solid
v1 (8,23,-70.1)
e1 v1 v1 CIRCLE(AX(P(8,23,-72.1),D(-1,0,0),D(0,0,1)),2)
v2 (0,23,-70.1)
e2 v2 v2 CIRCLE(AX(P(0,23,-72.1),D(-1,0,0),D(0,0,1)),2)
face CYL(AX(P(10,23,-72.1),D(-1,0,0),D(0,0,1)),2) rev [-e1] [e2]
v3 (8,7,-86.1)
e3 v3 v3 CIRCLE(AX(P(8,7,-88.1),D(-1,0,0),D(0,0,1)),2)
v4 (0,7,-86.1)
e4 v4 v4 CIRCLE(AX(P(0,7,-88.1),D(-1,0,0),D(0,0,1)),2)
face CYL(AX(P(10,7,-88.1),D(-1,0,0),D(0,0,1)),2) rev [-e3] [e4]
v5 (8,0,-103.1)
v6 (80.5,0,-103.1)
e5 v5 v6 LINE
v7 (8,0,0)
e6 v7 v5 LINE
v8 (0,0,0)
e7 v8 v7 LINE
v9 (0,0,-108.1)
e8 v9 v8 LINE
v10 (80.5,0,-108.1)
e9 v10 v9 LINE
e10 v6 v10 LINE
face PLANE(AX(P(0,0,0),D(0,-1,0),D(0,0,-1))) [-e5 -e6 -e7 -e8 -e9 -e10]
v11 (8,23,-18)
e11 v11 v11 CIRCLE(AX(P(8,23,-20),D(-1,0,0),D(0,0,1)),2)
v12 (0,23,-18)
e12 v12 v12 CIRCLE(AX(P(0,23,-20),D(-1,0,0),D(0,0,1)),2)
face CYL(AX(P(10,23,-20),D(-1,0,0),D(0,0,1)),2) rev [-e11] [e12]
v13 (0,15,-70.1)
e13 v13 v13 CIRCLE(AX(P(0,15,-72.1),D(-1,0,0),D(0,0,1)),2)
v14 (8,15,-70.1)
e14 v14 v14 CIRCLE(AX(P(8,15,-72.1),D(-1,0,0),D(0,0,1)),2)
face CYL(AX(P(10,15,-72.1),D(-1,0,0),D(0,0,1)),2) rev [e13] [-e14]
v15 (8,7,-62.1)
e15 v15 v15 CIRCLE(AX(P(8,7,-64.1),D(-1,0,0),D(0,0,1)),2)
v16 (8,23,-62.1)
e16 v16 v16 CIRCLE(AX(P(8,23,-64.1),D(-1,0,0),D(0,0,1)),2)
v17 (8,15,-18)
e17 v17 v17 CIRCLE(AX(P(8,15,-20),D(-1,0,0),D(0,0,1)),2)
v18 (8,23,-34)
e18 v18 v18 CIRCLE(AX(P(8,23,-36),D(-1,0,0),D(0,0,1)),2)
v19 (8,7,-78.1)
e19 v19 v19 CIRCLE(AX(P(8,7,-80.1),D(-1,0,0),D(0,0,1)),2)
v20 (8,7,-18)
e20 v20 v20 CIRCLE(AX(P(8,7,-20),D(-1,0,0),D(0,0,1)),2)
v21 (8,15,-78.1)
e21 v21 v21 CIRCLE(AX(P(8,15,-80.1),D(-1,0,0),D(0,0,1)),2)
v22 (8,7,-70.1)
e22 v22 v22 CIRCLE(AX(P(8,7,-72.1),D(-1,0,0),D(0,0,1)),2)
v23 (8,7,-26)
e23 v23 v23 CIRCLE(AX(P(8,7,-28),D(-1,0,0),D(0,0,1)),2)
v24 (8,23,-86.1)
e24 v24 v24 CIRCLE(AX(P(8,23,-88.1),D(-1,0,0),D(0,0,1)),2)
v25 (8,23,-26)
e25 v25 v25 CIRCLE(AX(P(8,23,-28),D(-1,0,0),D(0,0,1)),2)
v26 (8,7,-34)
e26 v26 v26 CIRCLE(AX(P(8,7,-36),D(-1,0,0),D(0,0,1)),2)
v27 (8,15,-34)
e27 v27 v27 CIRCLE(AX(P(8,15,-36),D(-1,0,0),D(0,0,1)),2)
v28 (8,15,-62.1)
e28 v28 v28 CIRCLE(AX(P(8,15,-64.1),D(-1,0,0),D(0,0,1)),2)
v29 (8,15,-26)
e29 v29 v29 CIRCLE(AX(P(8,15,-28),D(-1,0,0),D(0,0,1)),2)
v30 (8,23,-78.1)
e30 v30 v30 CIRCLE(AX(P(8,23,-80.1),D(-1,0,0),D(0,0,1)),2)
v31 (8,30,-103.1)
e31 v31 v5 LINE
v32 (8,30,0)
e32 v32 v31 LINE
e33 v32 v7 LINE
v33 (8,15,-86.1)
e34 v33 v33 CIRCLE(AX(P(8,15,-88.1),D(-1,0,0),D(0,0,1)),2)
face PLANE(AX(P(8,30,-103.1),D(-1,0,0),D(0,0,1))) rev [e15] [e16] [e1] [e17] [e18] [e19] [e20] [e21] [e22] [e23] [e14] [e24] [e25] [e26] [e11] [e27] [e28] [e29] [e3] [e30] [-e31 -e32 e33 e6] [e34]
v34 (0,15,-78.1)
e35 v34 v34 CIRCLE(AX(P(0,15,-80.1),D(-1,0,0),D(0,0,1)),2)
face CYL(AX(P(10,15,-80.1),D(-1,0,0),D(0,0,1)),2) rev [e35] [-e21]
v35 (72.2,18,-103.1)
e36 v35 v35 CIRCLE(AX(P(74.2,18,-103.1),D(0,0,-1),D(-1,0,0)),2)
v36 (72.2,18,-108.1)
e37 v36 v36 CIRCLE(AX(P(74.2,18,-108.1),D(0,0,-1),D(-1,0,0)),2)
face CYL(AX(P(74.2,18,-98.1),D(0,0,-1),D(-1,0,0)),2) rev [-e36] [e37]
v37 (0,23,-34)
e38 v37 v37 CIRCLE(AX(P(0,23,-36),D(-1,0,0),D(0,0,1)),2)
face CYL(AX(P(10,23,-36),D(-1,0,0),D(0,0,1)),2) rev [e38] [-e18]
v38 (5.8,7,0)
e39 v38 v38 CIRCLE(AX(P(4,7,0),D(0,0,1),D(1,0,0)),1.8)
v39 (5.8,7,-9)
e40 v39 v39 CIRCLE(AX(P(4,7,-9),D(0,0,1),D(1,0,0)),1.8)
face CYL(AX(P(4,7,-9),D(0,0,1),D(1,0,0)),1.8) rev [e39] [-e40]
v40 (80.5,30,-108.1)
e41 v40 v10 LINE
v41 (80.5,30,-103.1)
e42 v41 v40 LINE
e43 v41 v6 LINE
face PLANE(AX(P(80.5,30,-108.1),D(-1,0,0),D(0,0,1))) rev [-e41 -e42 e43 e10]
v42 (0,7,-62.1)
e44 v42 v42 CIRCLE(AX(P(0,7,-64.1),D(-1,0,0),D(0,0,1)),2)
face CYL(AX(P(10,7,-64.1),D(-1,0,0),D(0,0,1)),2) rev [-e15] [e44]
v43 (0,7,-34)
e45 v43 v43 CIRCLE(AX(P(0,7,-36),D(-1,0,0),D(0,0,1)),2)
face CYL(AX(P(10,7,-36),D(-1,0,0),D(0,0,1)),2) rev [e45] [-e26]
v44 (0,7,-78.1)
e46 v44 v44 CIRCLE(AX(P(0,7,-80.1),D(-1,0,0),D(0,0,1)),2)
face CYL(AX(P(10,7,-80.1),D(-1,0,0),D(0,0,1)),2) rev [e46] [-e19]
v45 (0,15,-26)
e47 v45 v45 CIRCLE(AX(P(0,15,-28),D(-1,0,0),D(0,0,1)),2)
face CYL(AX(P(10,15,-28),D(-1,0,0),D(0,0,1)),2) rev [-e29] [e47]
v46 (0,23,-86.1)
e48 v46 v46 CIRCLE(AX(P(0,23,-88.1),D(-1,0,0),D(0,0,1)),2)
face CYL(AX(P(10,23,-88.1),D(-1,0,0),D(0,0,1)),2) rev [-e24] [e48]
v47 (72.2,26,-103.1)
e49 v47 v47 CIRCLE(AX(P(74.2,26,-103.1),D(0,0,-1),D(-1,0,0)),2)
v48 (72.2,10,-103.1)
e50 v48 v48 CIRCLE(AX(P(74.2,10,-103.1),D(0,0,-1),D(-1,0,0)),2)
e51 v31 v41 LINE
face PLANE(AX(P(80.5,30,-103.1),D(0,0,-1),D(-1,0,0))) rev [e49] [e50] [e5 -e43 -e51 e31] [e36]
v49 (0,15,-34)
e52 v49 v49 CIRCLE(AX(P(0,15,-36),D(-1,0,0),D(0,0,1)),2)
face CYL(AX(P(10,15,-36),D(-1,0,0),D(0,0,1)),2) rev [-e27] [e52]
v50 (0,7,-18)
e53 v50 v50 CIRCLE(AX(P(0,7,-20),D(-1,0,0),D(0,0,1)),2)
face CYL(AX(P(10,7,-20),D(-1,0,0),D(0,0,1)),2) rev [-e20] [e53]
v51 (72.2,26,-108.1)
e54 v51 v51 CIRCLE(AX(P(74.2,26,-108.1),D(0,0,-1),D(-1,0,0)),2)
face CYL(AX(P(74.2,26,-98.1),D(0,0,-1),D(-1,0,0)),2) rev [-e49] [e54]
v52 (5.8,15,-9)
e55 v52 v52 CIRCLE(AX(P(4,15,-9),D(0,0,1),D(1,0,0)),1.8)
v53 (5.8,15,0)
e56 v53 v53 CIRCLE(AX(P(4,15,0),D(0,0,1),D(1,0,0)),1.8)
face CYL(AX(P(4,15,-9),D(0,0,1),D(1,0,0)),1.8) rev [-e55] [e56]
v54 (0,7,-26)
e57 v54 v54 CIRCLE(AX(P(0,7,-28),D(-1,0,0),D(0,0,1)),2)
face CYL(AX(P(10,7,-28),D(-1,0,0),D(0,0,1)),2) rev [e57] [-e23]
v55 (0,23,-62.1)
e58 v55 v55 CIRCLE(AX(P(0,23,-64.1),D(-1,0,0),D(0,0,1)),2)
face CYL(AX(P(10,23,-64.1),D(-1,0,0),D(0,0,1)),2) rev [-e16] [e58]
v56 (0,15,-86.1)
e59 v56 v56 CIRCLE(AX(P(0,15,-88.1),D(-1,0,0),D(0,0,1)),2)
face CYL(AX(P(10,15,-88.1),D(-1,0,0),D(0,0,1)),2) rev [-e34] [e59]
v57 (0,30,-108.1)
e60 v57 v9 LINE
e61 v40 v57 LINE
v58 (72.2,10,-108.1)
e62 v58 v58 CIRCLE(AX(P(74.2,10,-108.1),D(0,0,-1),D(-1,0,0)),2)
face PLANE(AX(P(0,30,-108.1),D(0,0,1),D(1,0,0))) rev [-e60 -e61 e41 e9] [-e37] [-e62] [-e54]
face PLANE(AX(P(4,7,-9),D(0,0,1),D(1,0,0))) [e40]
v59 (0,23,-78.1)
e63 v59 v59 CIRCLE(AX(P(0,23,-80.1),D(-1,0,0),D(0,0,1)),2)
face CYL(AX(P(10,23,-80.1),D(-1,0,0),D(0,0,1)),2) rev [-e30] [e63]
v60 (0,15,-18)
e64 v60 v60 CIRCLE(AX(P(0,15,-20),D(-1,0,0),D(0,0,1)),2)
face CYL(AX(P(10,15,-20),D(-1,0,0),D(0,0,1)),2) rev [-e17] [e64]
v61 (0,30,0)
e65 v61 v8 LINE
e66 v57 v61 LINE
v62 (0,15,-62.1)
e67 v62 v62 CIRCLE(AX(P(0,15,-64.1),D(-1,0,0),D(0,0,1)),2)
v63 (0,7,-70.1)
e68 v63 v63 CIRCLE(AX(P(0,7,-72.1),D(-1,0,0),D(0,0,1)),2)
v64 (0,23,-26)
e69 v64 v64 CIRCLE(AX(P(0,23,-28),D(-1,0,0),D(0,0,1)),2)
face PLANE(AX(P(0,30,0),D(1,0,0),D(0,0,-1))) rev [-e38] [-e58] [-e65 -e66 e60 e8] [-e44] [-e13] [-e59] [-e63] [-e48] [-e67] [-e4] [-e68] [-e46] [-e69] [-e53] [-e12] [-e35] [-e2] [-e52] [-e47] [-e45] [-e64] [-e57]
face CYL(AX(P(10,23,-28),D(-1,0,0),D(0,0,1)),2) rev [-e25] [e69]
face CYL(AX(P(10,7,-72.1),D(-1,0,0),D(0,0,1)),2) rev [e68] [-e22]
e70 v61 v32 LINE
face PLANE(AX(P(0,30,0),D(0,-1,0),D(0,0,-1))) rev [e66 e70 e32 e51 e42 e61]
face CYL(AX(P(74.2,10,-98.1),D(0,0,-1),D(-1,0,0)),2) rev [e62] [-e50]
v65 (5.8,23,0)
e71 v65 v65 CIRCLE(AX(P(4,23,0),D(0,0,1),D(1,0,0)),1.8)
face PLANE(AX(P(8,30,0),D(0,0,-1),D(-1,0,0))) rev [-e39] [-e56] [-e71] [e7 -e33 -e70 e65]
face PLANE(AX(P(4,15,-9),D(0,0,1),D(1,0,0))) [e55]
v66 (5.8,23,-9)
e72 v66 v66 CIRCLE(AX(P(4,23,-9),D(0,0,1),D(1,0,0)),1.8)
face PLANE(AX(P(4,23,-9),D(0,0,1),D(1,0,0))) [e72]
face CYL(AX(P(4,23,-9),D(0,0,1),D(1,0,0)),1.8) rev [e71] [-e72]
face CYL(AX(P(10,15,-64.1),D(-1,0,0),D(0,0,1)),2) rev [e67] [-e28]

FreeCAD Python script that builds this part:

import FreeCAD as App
import Part
import Sketcher

V = App.Vector
Q = App.Units.Quantity

doc = App.newDocument("Part")
body = doc.addObject("PartDesign::Body", "Body")

# Sketch on XZ plane
sketch1 = body.newObject("Sketcher::SketchObject", "Sketch")
sketch1.AttachmentSupport = (doc.getObject("XZ_Plane"), [""])
sketch1.MapMode = "FlatFace"
sketch1.addGeometry([
    Part.LineSegment(V(0, -108.1, 0), V(0, 0, 0)),  # 0
    Part.LineSegment(V(0, 0, 0), V(8, 0, 0)),  # 1
    Part.LineSegment(V(8, 0, 0), V(8, -103.1, 0)),  # 2
    Part.LineSegment(V(8, -103.1, 0), V(80.5, -103.1, 0)),  # 3
    Part.LineSegment(V(80.5, -103.1, 0), V(80.5, -108.1, 0)),  # 4
    Part.LineSegment(V(80.5, -108.1, 0), V(0, -108.1, 0)),  # 5
], False)
sketch1.addConstraint([
    Sketcher.Constraint("Coincident", 0, 2, 1, 1),
    Sketcher.Constraint("Coincident", 1, 2, 2, 1),
    Sketcher.Constraint("Coincident", 2, 2, 3, 1),
    Sketcher.Constraint("Coincident", 3, 2, 4, 1),
    Sketcher.Constraint("Coincident", 4, 2, 5, 1),
    Sketcher.Constraint("Coincident", 5, 2, 0, 1),
    Sketcher.Constraint("Vertical", 0),
    Sketcher.Constraint("Horizontal", 1),
    Sketcher.Constraint("Vertical", 2),
    Sketcher.Constraint("Horizontal", 3),
    Sketcher.Constraint("Vertical", 4),
    Sketcher.Constraint("Horizontal", 5),
    Sketcher.Constraint("Coincident", 0, 2, -1, 1),
    Sketcher.Constraint("DistanceX", 1, 1, 1, 2, Q("8 mm")),
    Sketcher.Constraint("DistanceY", 4, 2, 4, 1, Q("5 mm")),
    Sketcher.Constraint("DistanceX", 3, 1, 3, 2, Q("72.5 mm")),
    Sketcher.Constraint("DistanceY", 0, 1, 0, 2, Q("108.1 mm")),
])
pad1 = body.newObject("PartDesign::Pad", "Pad")
pad1.Profile = sketch1
pad1.Length = 30
pad1.Reversed = True

# Sketch on YZ plane
sketch2 = body.newObject("Sketcher::SketchObject", "Sketch001")
sketch2.AttachmentSupport = (doc.getObject("YZ_Plane"), [""])
sketch2.MapMode = "FlatFace"
sketch2.addGeometry([
    Part.Circle(V(23, -20, 0), V(0, 0, 1), 2),  # 0
    Part.Circle(V(15, -20, 0), V(0, 0, 1), 2),  # 1
    Part.Circle(V(7, -20, 0), V(0, 0, 1), 2),  # 2
    Part.Circle(V(23, -28, 0), V(0, 0, 1), 2),  # 3
    Part.Circle(V(15, -28, 0), V(0, 0, 1), 2),  # 4
    Part.Circle(V(7, -28, 0), V(0, 0, 1), 2),  # 5
    Part.Circle(V(23, -36, 0), V(0, 0, 1), 2),  # 6
    Part.Circle(V(15, -36, 0), V(0, 0, 1), 2),  # 7
    Part.Circle(V(7, -36, 0), V(0, 0, 1), 2),  # 8
    Part.Circle(V(23, -64.1, 0), V(0, 0, 1), 2),  # 9
    Part.Circle(V(15, -64.1, 0), V(0, 0, 1), 2),  # 10
    Part.Circle(V(7, -64.1, 0), V(0, 0, 1), 2),  # 11
    Part.Circle(V(23, -72.1, 0), V(0, 0, 1), 2),  # 12
    Part.Circle(V(15, -72.1, 0), V(0, 0, 1), 2),  # 13
    Part.Circle(V(7, -72.1, 0), V(0, 0, 1), 2),  # 14
    Part.Circle(V(23, -80.1, 0), V(0, 0, 1), 2),  # 15
    Part.Circle(V(15, -80.1, 0), V(0, 0, 1), 2),  # 16
    Part.Circle(V(7, -80.1, 0), V(0, 0, 1), 2),  # 17
    Part.Circle(V(23, -88.1, 0), V(0, 0, 1), 2),  # 18
    Part.Circle(V(15, -88.1, 0), V(0, 0, 1), 2),  # 19
    Part.Circle(V(7, -88.1, 0), V(0, 0, 1), 2),  # 20
], False)
sketch2.addConstraint([
    Sketcher.Constraint("Equal", 0, 1),
    Sketcher.Constraint("Equal", 1, 2),
    Sketcher.Constraint("Equal", 2, 3),
    Sketcher.Constraint("Equal", 3, 4),
    Sketcher.Constraint("Equal", 4, 5),
    Sketcher.Constraint("Equal", 5, 6),
    Sketcher.Constraint("Equal", 6, 7),
    Sketcher.Constraint("Equal", 7, 8),
    Sketcher.Constraint("Equal", 8, 9),
    Sketcher.Constraint("Equal", 9, 10),
    Sketcher.Constraint("Equal", 10, 11),
    Sketcher.Constraint("Equal", 11, 12),
    Sketcher.Constraint("Equal", 12, 13),
    Sketcher.Constraint("Equal", 13, 14),
    Sketcher.Constraint("Equal", 14, 15),
    Sketcher.Constraint("Equal", 15, 16),
    Sketcher.Constraint("Equal", 16, 17),
    Sketcher.Constraint("Equal", 17, 18),
    Sketcher.Constraint("Equal", 18, 19),
    Sketcher.Constraint("Equal", 19, 20),
    Sketcher.Constraint("Horizontal", 0, 3, 1, 3),
    Sketcher.Constraint("Horizontal", 1, 3, 2, 3),
    Sketcher.Constraint("Horizontal", 3, 3, 4, 3),
    Sketcher.Constraint("Horizontal", 4, 3, 5, 3),
    Sketcher.Constraint("Horizontal", 6, 3, 7, 3),
    Sketcher.Constraint("Horizontal", 7, 3, 8, 3),
    Sketcher.Constraint("Horizontal", 9, 3, 10, 3),
    Sketcher.Constraint("Horizontal", 10, 3, 11, 3),
    Sketcher.Constraint("Horizontal", 12, 3, 13, 3),
    Sketcher.Constraint("Horizontal", 13, 3, 14, 3),
    Sketcher.Constraint("Horizontal", 15, 3, 16, 3),
    Sketcher.Constraint("Horizontal", 16, 3, 17, 3),
    Sketcher.Constraint("Horizontal", 18, 3, 19, 3),
    Sketcher.Constraint("Horizontal", 19, 3, 20, 3),
    Sketcher.Constraint("Vertical", 0, 3, 3, 3),
    Sketcher.Constraint("Vertical", 1, 3, 4, 3),
    Sketcher.Constraint("Vertical", 2, 3, 5, 3),
    Sketcher.Constraint("Vertical", 3, 3, 6, 3),
    Sketcher.Constraint("Vertical", 4, 3, 7, 3),
    Sketcher.Constraint("Vertical", 5, 3, 8, 3),
    Sketcher.Constraint("Vertical", 6, 3, 9, 3),
    Sketcher.Constraint("Vertical", 7, 3, 10, 3),
    Sketcher.Constraint("Vertical", 8, 3, 11, 3),
    Sketcher.Constraint("Vertical", 9, 3, 12, 3),
    Sketcher.Constraint("Vertical", 10, 3, 13, 3),
    Sketcher.Constraint("Vertical", 11, 3, 14, 3),
    Sketcher.Constraint("Vertical", 12, 3, 15, 3),
    Sketcher.Constraint("Vertical", 13, 3, 16, 3),
    Sketcher.Constraint("Vertical", 14, 3, 17, 3),
    Sketcher.Constraint("Vertical", 15, 3, 18, 3),
    Sketcher.Constraint("Vertical", 16, 3, 19, 3),
    Sketcher.Constraint("Vertical", 17, 3, 20, 3),
    Sketcher.Constraint("Diameter", 0, Q("4 mm")),
    Sketcher.Constraint("DistanceX", -1, 1, 0, 3, Q("23 mm")),
    Sketcher.Constraint("DistanceY", 0, 3, -1, 1, Q("20 mm")),
    Sketcher.Constraint("DistanceX", -1, 1, 1, 3, Q("15 mm")),
    Sketcher.Constraint("DistanceX", -1, 1, 2, 3, Q("7 mm")),
    Sketcher.Constraint("DistanceY", 3, 3, -1, 1, Q("28 mm")),
    Sketcher.Constraint("DistanceY", 6, 3, -1, 1, Q("36 mm")),
    Sketcher.Constraint("DistanceY", 12, 3, 9, 3, Q("8 mm")),
    Sketcher.Constraint("DistanceY", 15, 3, 12, 3, Q("8 mm")),
    Sketcher.Constraint("DistanceY", 18, 3, 15, 3, Q("8 mm")),
    Sketcher.Constraint("DistanceY", 9, 3, -1, 1, Q("64.1 mm")),
])
pocket1 = body.newObject("PartDesign::Pocket", "Pocket")
pocket1.Profile = sketch2
pocket1.Length = 10
pocket1.Reversed = True

# Sketch on XY plane
sketch3 = body.newObject("Sketcher::SketchObject", "Sketch002")
sketch3.AttachmentSupport = (doc.getObject("XY_Plane"), [""])
sketch3.MapMode = "FlatFace"
sketch3.AttachmentOffset = App.Placement(V(0, 0, -108.1), App.Rotation())
sketch3.addGeometry([
    Part.Circle(V(74.2, 26, 0), V(0, 0, 1), 2),
    Part.Circle(V(74.2, 18, 0), V(0, 0, 1), 2),
    Part.Circle(V(74.2, 10, 0), V(0, 0, 1), 2),
], False)
sketch3.addConstraint([
    Sketcher.Constraint("Equal", 0, 1),
    Sketcher.Constraint("Equal", 1, 2),
    Sketcher.Constraint("Vertical", 0, 3, 1, 3),
    Sketcher.Constraint("Vertical", 1, 3, 2, 3),
    Sketcher.Constraint("Diameter", 0, Q("4 mm")),
    Sketcher.Constraint("DistanceY", -1, 1, 0, 3, Q("26 mm")),
    Sketcher.Constraint("DistanceY", -1, 1, 1, 3, Q("18 mm")),
    Sketcher.Constraint("DistanceY", -1, 1, 2, 3, Q("10 mm")),
    Sketcher.Constraint("DistanceX", -1, 1, 0, 3, Q("74.2 mm")),
])
pocket2 = body.newObject("PartDesign::Pocket", "Pocket001")
pocket2.Profile = sketch3
pocket2.Length = 10
pocket2.Reversed = True

# Sketch on XY plane
sketch4 = body.newObject("Sketcher::SketchObject", "Sketch003")
sketch4.AttachmentSupport = (doc.getObject("XY_Plane"), [""])
sketch4.MapMode = "FlatFace"
sketch4.addGeometry([
    Part.Circle(V(4, 23, 0), V(0, 0, 1), 1.8),
    Part.Circle(V(4, 7, 0), V(0, 0, 1), 1.8),
    Part.Circle(V(4, 15, 0), V(0, 0, 1), 1.8),
], False)
sketch4.addConstraint([
    Sketcher.Constraint("Equal", 0, 1),
    Sketcher.Constraint("Equal", 1, 2),
    Sketcher.Constraint("Vertical", 0, 3, 1, 3),
    Sketcher.Constraint("Vertical", 1, 3, 2, 3),
    Sketcher.Constraint("Diameter", 0, Q("3.6 mm")),
    Sketcher.Constraint("DistanceX", -1, 1, 0, 3, Q("4 mm")),
    Sketcher.Constraint("DistanceY", -1, 1, 0, 3, Q("23 mm")),
    Sketcher.Constraint("DistanceY", -1, 1, 1, 3, Q("7 mm")),
    Sketcher.Constraint("DistanceY", -1, 1, 2, 3, Q("15 mm")),
])
pocket3 = body.newObject("PartDesign::Pocket", "Pocket002")
pocket3.Profile = sketch4
pocket3.Length = 9

doc.recompute()
